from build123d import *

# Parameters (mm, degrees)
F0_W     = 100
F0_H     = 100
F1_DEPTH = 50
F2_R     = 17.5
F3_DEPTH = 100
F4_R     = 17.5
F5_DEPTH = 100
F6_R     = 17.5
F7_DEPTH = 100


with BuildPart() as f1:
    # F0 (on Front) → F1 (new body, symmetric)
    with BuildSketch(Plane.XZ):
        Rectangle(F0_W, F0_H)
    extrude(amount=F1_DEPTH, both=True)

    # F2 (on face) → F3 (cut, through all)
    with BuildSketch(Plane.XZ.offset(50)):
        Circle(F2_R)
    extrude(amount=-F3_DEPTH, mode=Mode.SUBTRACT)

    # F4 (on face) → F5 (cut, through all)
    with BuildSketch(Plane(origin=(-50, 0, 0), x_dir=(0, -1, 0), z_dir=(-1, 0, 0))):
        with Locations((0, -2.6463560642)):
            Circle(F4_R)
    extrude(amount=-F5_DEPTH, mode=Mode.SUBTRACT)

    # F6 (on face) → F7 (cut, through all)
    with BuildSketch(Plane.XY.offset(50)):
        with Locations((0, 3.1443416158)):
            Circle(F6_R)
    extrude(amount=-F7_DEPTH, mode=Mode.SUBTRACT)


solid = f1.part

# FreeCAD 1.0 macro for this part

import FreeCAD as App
import Part
import Sketcher
from FreeCAD import Vector

doc = App.newDocument("Part")
body = doc.addObject("PartDesign::Body", "Body")

# Sketch on XZ plane
sketch1 = body.newObject("Sketcher::SketchObject", "Sketch")
sketch1.AttachmentSupport = (doc.getObject("XZ_Plane"), [""])
sketch1.MapMode = "FlatFace"
sketch1.addGeometry(Part.LineSegment(Vector(-50, 50, 0), Vector(-50, -50, 0)), False)
sketch1.addGeometry(Part.LineSegment(Vector(-50, -50, 0), Vector(50, -50, 0)), False)
sketch1.addGeometry(Part.LineSegment(Vector(50, -50, 0), Vector(50, 50, 0)), False)
sketch1.addGeometry(Part.LineSegment(Vector(50, 50, 0), Vector(-50, 50, 0)), False)
sketch1.addConstraint(Sketcher.Constraint("Coincident", 0, 2, 1, 1))
sketch1.addConstraint(Sketcher.Constraint("Coincident", 1, 2, 2, 1))
sketch1.addConstraint(Sketcher.Constraint("Coincident", 2, 2, 3, 1))
sketch1.addConstraint(Sketcher.Constraint("Coincident", 3, 2, 0, 1))
sketch1.addConstraint(Sketcher.Constraint("Vertical", 0))
sketch1.addConstraint(Sketcher.Constraint("Horizontal", 1))
sketch1.addConstraint(Sketcher.Constraint("Vertical", 2))
sketch1.addConstraint(Sketcher.Constraint("Horizontal", 3))
sketch1.addConstraint(Sketcher.Constraint("Symmetric", 0, 2, 2, 2, -1, 1))
sketch1.addConstraint(Sketcher.Constraint("Equal", 3, 0))
sketch1.addConstraint(Sketcher.Constraint("DistanceX", 1, 1, 1, 2, 100.0))
pad1 = body.newObject("PartDesign::Pad", "Pad")
pad1.Profile = sketch1
pad1.Length = 100
pad1.Midplane = True

# Sketch on XZ plane
sketch2 = body.newObject("Sketcher::SketchObject", "Sketch001")
sketch2.AttachmentSupport = (doc.getObject("XZ_Plane"), [""])
sketch2.MapMode = "FlatFace"
sketch2.AttachmentOffset = App.Placement(Vector(0, 0, 50), App.Rotation())
sketch2.addGeometry(Part.Circle(Vector(0, 0, 0), Vector(0, 0, 1), 18), False)
sketch2.addConstraint(Sketcher.Constraint("Coincident", 0, 3, -1, 1))
sketch2.addConstraint(Sketcher.Constraint("Diameter", 0, 35.0))
pocket1 = body.newObject("PartDesign::Pocket", "Pocket")
pocket1.Profile = sketch2
pocket1.Type = "ThroughAll"

# Sketch on YZ plane
sketch3 = body.newObject("Sketcher::SketchObject", "Sketch002")
sketch3.AttachmentSupport = (doc.getObject("YZ_Plane"), [""])
sketch3.MapMode = "FlatFace"
sketch3.AttachmentOffset = App.Placement(Vector(0, 0, -50), App.Rotation())
sketch3.addGeometry(Part.Circle(Vector(0, -3, 0), Vector(0, 0, 1), 18), False)
sketch3.addConstraint(Sketcher.Constraint("PointOnObject", 0, 3, -2))
sketch3.addConstraint(Sketcher.Constraint("Diameter", 0, 35.0))
sketch3.addConstraint(Sketcher.Constraint("DistanceY", 0, 3, -1, 1, 2.646356))
pocket2 = body.newObject("PartDesign::Pocket", "Pocket001")
pocket2.Profile = sketch3
pocket2.Type = "ThroughAll"
pocket2.Reversed = True

# Sketch on XY plane
sketch4 = body.newObject("Sketcher::SketchObject", "Sketch003")
sketch4.AttachmentSupport = (doc.getObject("XY_Plane"), [""])
sketch4.MapMode = "FlatFace"
sketch4.AttachmentOffset = App.Placement(Vector(0, 0, 50), App.Rotation())
sketch4.addGeometry(Part.Circle(Vector(0, 3, 0), Vector(0, 0, 1), 18), False)
sketch4.addConstraint(Sketcher.Constraint("PointOnObject", 0, 3, -2))
sketch4.addConstraint(Sketcher.Constraint("Diameter", 0, 35.0))
sketch4.addConstraint(Sketcher.Constraint("DistanceY", -1, 1, 0, 3, 3.144342))
pocket3 = body.newObject("PartDesign::Pocket", "Pocket002")
pocket3.Profile = sketch4
pocket3.Type = "ThroughAll"

doc.recompute()
